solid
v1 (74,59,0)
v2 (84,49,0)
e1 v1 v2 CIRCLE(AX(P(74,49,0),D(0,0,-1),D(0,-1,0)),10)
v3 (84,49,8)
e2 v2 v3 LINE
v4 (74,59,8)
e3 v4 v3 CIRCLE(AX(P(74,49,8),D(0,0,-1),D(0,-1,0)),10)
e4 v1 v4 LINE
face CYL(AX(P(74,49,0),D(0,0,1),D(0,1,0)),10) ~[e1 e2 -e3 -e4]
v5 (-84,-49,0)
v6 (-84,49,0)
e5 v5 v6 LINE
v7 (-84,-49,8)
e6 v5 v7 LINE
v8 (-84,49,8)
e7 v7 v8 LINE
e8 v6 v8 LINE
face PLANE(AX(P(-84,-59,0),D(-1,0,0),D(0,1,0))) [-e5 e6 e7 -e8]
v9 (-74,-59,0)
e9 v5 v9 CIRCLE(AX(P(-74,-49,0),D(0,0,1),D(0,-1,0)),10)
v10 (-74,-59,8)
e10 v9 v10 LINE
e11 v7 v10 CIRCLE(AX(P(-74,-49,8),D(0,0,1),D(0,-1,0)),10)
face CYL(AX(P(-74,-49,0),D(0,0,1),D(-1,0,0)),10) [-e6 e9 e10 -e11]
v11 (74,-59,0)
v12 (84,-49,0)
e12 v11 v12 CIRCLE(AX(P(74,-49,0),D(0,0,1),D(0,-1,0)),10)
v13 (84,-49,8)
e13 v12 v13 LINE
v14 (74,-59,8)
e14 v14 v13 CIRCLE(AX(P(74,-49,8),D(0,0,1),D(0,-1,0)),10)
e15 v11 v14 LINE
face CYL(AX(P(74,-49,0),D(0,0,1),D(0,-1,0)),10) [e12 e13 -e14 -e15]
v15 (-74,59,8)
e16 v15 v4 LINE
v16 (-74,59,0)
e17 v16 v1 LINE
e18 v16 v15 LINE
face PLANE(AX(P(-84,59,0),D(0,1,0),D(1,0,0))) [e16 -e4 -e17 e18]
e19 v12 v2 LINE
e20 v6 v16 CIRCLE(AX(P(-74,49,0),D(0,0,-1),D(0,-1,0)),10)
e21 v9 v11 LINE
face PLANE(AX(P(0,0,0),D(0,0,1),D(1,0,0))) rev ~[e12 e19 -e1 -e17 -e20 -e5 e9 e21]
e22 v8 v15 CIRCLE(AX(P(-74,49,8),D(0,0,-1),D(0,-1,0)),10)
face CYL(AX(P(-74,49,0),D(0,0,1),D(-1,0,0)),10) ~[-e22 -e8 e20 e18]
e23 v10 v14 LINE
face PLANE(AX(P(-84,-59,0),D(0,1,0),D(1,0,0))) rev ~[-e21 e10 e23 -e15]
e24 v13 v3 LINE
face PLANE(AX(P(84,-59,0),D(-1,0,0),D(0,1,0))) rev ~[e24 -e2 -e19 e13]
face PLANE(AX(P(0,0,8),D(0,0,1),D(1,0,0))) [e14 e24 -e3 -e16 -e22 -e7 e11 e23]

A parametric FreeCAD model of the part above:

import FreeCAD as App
import Part
import Sketcher

V = App.Vector
Q = App.Units.Quantity


def edges_at(feature, points):
    """Names of the edges that pass closest to the given points."""
    edges = feature.Shape.Edges
    near = lambda p: min(range(len(edges)), key=lambda i: edges[i].distToShape(Part.Vertex(*p))[0])
    return sorted({f"Edge{near(p) + 1}" for p in points})

doc = App.newDocument("Part")
body = doc.addObject("PartDesign::Body", "Body")

sketch1 = doc.addObject("Sketcher::SketchObject", "Sketch")
body.addObject(sketch1)
sketch1.AttachmentSupport = (doc.XY_Plane, [""])
sketch1.MapMode = "FlatFace"
sketch1.addGeometry([
    Part.LineSegment(V(-84, 59, 0), V(-84, -59, 0)),
    Part.LineSegment(V(-84, -59, 0), V(84, -59, 0)),
    Part.LineSegment(V(84, -59, 0), V(84, 59, 0)),
    Part.LineSegment(V(84, 59, 0), V(-84, 59, 0)),
], False)
sketch1.addConstraint([
    Sketcher.Constraint("Coincident", 0, 2, 1, 1),
    Sketcher.Constraint("Coincident", 1, 2, 2, 1),
    Sketcher.Constraint("Coincident", 2, 2, 3, 1),
    Sketcher.Constraint("Coincident", 3, 2, 0, 1),
    Sketcher.Constraint("Vertical", 0),
    Sketcher.Constraint("Horizontal", 1),
    Sketcher.Constraint("Vertical", 2),
    Sketcher.Constraint("Horizontal", 3),
    Sketcher.Constraint("Symmetric", 0, 2, 2, 2, -1, 1),
    Sketcher.Constraint("DistanceX", 1, 1, 1, 2, Q("168 mm")),
    Sketcher.Constraint("DistanceY", 0, 2, 0, 1, Q("118 mm")),
])
pad1 = doc.addObject("PartDesign::Pad", "Pad")
body.addObject(pad1)
pad1.Profile = sketch1
pad1.Length = 8
doc.recompute()

fillet = doc.addObject("PartDesign::Fillet", "Fillet")
body.addObject(fillet)
fillet.Base = (pad1, edges_at(pad1, [(-84, -59, 4)]))
fillet.Radius = 10
doc.recompute()

fillet2 = doc.addObject("PartDesign::Fillet", "Fillet001")
body.addObject(fillet2)
fillet2.Base = (fillet, edges_at(fillet, [(-84, 59, 4), (84, 59, 4), (84, -59, 4)]))
fillet2.Radius = 10

doc.recompute()
